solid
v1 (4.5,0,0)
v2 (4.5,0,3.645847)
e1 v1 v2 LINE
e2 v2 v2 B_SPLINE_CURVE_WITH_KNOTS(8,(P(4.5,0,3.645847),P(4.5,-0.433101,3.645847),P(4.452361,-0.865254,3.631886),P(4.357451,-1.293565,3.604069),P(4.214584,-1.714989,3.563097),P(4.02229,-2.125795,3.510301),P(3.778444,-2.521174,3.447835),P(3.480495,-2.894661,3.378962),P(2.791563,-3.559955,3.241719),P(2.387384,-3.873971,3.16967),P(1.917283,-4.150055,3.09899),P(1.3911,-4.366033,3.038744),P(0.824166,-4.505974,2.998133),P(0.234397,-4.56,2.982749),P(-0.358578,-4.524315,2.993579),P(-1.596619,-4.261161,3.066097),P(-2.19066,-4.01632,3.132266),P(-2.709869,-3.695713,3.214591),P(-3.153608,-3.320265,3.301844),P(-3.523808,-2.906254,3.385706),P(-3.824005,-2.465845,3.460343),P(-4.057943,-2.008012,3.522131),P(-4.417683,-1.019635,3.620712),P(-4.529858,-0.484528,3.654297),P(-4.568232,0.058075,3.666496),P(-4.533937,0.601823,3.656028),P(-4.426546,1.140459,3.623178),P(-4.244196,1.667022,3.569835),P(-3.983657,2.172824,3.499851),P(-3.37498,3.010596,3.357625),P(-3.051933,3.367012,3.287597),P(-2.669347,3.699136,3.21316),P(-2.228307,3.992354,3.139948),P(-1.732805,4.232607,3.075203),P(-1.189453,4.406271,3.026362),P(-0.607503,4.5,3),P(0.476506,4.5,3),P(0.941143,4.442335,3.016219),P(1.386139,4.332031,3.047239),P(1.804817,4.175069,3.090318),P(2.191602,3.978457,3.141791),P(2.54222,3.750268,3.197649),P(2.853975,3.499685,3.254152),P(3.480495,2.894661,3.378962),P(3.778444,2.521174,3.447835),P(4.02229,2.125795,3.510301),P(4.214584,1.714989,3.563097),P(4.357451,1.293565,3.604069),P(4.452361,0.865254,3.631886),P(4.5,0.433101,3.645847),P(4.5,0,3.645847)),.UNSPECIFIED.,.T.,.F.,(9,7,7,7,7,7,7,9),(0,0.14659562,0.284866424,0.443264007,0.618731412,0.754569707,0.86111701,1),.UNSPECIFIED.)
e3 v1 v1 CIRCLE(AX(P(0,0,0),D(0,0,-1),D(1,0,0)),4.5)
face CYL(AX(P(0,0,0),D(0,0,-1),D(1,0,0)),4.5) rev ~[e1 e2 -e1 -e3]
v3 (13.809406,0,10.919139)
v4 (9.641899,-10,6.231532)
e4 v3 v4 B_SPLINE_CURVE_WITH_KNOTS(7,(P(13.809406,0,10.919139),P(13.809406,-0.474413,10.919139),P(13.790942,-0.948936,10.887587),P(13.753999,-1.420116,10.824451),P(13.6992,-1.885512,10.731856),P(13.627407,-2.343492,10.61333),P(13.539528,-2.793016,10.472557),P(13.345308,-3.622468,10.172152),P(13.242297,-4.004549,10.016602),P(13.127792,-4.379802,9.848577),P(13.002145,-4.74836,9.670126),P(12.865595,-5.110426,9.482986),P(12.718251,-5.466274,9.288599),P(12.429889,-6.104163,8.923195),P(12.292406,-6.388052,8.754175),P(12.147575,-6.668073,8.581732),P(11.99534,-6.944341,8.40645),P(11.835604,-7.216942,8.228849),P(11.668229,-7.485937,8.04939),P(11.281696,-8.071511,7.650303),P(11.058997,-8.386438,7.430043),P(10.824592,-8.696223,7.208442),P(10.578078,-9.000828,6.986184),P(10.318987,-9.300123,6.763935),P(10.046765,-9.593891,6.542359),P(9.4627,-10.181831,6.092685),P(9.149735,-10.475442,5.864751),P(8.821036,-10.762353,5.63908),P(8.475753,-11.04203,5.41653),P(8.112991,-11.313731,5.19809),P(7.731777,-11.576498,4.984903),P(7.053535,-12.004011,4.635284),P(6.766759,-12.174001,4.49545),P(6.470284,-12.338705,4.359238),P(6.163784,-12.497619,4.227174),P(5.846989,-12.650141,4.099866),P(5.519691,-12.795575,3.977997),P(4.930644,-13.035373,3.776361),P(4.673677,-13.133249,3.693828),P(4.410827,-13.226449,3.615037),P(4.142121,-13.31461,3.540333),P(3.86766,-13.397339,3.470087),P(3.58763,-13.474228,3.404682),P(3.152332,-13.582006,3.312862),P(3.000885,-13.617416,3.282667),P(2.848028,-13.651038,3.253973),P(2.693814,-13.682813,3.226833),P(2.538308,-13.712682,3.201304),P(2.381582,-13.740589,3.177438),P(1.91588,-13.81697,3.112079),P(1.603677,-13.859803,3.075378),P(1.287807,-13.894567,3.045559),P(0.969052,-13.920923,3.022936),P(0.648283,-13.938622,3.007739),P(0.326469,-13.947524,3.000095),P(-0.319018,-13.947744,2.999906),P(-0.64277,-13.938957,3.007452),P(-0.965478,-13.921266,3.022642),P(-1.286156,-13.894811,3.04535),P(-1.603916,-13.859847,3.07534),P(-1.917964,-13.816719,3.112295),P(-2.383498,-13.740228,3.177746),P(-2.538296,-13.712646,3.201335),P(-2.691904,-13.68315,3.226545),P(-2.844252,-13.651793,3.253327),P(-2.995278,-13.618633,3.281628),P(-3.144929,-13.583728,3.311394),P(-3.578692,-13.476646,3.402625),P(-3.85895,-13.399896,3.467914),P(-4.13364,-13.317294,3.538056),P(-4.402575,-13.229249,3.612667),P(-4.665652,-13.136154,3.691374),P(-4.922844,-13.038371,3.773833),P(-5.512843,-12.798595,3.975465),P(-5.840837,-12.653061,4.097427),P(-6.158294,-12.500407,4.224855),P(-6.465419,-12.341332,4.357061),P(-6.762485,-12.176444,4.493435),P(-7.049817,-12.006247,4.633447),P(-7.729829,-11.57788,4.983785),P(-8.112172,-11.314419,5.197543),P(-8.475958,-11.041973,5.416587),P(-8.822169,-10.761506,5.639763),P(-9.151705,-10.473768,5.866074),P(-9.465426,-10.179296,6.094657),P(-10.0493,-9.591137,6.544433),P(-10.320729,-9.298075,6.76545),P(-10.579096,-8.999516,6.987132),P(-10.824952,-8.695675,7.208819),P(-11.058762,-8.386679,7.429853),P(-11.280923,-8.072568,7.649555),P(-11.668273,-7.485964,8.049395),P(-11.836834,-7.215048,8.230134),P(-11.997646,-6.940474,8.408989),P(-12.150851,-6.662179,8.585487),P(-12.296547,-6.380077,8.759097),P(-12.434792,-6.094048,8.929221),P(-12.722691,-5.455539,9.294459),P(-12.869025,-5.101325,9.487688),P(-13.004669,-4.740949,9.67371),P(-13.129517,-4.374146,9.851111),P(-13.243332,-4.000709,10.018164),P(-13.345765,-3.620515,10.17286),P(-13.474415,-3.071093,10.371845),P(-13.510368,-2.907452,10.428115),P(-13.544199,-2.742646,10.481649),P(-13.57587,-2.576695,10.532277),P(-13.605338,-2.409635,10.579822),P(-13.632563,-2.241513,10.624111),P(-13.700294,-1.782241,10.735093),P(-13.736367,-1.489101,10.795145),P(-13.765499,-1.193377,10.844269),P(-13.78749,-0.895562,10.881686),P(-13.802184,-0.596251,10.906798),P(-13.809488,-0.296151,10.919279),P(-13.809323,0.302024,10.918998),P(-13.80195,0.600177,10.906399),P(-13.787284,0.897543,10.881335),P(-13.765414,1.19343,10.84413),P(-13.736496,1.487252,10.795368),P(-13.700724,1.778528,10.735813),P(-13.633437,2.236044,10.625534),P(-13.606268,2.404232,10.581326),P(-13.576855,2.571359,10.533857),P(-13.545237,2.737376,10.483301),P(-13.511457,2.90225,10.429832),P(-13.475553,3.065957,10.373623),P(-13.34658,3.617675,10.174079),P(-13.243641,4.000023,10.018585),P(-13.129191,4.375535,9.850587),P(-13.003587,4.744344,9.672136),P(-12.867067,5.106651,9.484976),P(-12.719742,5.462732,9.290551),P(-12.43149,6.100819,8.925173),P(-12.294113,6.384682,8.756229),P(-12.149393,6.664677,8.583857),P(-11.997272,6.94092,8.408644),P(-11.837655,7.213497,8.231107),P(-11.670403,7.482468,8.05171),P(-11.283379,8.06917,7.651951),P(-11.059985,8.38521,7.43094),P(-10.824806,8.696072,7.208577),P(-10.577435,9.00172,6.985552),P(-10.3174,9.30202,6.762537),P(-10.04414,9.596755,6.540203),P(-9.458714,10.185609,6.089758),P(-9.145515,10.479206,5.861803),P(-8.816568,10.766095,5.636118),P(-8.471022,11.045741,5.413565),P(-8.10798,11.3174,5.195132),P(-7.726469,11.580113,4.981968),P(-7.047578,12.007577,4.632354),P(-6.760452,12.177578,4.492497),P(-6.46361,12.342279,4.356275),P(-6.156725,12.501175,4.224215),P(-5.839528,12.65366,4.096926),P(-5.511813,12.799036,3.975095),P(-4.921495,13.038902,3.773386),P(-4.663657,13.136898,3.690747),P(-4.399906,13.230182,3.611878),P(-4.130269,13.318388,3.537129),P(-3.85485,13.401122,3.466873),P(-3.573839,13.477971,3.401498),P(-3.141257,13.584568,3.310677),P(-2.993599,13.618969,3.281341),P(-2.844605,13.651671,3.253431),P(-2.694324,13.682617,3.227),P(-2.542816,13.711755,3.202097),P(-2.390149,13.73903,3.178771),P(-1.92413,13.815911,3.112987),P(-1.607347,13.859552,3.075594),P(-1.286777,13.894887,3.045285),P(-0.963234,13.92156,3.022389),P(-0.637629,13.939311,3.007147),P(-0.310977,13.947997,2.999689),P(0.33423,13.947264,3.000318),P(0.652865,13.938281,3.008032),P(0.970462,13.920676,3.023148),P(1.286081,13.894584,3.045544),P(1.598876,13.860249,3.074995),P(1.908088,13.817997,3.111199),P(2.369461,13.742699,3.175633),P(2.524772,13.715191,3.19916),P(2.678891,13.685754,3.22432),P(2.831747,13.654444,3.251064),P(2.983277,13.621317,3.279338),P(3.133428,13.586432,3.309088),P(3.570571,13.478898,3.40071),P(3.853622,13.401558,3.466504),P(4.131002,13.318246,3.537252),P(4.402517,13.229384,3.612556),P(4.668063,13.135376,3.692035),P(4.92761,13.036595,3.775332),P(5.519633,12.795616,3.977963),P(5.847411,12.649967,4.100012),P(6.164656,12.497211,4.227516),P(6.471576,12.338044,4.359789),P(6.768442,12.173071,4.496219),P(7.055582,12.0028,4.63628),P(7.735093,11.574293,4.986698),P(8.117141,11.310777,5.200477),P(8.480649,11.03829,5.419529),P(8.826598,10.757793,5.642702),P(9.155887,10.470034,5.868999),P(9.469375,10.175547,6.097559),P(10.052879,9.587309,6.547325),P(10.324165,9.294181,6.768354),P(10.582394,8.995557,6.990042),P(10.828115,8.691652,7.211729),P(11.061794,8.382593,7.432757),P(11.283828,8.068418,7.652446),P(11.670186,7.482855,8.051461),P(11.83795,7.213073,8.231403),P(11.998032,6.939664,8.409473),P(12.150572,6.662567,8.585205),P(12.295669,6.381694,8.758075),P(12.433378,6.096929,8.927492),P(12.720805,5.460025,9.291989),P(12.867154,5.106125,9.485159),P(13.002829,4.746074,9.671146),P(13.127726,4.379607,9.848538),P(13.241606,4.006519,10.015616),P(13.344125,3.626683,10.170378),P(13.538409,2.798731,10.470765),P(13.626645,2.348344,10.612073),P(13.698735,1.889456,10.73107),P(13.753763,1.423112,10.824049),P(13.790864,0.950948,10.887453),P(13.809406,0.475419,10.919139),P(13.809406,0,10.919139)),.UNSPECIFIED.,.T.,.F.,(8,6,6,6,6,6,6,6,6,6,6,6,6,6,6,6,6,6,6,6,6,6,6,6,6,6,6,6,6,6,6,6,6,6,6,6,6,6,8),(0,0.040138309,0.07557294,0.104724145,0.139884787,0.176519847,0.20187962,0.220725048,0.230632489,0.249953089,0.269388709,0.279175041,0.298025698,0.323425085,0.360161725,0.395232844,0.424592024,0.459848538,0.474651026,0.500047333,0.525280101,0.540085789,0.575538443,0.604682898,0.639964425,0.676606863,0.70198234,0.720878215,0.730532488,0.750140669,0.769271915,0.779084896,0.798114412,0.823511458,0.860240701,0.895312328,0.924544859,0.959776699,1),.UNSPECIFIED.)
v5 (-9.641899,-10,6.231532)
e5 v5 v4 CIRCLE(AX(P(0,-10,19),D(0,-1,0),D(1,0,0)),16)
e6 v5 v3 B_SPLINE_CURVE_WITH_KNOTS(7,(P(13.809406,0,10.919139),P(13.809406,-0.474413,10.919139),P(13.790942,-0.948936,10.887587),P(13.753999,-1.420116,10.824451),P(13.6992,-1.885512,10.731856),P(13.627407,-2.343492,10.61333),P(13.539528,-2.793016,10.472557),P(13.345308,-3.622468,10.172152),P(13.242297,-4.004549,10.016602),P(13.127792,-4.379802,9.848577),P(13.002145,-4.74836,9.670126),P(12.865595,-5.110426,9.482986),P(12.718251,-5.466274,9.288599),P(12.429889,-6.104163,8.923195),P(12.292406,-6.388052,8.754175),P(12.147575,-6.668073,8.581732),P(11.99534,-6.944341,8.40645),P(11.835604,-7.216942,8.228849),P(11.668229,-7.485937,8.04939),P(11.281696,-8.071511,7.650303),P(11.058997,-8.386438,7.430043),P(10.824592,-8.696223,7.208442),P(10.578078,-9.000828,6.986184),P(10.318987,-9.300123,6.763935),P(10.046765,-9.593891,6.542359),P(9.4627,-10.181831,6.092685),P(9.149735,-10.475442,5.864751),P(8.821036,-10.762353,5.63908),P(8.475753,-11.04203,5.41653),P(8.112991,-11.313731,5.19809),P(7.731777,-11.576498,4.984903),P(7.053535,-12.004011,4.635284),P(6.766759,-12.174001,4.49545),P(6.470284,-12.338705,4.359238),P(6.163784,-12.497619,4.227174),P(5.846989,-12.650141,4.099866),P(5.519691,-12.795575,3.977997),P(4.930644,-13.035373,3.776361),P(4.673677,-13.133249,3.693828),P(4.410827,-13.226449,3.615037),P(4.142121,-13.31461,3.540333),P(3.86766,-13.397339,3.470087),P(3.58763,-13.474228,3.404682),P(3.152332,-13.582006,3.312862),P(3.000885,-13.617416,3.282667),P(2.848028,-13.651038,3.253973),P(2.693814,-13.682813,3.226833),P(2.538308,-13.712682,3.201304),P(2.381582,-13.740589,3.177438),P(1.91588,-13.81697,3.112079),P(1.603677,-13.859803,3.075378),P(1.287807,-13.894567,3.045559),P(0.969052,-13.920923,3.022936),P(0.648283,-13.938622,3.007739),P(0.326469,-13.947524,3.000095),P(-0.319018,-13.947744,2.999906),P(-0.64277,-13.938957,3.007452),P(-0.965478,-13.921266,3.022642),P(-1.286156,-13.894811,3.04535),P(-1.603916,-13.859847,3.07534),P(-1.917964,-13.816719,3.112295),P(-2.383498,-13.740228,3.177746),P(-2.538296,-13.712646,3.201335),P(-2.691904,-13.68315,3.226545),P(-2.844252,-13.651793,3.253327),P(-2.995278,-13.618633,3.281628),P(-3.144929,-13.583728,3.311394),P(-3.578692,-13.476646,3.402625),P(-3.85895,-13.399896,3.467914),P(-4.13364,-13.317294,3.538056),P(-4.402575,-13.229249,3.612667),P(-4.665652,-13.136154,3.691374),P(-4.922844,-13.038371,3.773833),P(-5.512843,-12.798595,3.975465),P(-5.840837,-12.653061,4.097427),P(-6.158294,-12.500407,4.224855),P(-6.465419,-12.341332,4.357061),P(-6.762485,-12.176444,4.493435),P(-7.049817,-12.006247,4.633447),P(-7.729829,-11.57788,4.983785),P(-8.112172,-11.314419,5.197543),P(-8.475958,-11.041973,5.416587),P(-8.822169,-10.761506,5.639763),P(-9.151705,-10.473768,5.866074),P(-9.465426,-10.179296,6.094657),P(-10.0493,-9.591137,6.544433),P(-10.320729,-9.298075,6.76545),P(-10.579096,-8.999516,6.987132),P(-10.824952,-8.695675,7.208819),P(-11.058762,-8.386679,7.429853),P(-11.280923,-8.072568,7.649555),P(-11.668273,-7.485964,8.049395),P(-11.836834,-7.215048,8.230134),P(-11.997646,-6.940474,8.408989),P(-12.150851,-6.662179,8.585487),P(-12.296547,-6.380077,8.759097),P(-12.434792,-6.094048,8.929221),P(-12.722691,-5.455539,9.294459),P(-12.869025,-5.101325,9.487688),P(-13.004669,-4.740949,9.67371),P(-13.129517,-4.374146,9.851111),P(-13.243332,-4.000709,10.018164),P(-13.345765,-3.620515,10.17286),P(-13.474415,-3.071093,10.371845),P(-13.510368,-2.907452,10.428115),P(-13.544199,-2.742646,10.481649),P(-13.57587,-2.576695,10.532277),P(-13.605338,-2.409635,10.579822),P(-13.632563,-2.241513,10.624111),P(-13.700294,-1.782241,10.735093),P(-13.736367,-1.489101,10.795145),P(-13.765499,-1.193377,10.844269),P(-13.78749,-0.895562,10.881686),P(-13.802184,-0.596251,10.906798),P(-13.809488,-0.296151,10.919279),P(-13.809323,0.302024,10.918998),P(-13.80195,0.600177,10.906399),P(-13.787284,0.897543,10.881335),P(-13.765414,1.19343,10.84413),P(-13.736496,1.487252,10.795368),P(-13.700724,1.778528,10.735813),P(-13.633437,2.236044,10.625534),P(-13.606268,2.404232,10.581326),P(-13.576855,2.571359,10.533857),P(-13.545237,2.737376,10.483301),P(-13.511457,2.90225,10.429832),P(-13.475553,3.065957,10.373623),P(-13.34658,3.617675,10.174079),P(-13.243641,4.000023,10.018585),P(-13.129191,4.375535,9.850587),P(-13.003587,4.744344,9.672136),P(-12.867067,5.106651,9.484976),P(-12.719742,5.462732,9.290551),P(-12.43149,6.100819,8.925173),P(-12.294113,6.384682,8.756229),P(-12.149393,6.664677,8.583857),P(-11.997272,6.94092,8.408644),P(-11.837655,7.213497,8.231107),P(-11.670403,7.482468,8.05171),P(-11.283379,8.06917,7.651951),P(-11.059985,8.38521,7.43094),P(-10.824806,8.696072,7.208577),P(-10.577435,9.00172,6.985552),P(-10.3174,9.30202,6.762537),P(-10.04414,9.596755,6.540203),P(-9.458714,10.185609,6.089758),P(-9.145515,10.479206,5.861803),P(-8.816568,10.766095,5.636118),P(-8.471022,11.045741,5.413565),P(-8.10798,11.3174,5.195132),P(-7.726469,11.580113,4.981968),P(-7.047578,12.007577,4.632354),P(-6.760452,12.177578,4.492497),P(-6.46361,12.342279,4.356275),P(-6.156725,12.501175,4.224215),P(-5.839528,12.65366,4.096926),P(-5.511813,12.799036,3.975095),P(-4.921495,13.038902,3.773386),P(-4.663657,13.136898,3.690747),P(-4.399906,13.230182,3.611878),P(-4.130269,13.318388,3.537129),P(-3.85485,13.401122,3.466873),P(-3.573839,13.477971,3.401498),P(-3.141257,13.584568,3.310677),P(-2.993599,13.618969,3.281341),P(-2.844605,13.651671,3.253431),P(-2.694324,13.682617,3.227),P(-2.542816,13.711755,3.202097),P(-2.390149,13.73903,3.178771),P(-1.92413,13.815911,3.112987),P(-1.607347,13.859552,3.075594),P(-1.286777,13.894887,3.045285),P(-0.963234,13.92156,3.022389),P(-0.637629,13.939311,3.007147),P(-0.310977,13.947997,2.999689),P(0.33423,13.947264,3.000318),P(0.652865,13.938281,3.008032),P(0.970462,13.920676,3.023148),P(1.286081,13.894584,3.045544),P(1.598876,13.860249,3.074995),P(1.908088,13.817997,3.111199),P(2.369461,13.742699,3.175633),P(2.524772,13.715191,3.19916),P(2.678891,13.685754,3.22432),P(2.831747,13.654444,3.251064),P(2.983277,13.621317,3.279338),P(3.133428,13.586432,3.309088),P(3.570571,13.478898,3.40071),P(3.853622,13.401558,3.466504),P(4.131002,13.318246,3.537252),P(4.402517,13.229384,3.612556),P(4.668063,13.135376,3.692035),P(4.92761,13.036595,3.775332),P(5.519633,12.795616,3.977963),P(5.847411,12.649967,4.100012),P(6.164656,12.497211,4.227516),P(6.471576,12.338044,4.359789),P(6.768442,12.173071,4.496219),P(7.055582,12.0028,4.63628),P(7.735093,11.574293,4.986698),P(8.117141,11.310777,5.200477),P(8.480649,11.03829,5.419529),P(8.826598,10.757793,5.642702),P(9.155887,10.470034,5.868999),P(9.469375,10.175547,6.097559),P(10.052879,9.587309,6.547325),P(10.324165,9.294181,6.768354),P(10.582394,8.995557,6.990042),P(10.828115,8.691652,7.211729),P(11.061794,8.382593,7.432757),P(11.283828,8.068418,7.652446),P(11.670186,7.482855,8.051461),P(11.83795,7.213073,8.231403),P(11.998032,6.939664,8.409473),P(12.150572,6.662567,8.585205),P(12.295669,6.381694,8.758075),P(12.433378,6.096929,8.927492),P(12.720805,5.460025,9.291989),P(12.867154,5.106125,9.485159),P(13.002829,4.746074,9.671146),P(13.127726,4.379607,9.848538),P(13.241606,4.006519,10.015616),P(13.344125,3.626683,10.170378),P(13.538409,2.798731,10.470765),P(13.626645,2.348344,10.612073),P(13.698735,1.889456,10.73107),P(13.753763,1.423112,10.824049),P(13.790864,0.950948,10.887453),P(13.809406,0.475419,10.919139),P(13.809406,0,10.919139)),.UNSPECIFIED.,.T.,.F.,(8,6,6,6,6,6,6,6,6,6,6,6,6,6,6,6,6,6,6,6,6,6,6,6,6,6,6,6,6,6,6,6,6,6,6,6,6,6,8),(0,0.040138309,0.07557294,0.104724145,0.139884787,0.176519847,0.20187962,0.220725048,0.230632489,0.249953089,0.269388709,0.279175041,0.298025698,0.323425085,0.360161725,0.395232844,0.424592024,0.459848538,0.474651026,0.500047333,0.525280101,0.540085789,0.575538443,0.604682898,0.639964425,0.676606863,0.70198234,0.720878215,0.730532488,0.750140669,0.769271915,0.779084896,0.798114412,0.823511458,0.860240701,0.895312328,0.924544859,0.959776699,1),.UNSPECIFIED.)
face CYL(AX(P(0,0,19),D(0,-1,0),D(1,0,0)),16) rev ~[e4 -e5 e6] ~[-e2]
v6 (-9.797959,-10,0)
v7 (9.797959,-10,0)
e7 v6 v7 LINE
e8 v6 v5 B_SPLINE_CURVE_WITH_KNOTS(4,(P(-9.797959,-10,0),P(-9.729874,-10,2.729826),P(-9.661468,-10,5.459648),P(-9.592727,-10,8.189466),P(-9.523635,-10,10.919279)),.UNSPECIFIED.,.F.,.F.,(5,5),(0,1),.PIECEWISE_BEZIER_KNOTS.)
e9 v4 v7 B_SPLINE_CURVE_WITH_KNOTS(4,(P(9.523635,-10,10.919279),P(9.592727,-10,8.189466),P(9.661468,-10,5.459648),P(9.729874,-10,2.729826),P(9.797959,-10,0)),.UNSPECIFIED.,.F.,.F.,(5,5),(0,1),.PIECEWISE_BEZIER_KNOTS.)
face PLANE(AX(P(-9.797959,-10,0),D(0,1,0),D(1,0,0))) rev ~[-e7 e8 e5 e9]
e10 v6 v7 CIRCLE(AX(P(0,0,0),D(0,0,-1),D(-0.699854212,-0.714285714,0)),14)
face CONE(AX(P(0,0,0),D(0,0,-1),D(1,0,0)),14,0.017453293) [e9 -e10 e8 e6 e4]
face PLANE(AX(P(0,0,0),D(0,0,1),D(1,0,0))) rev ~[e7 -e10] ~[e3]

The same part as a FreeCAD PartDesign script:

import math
import FreeCAD as App
import Part
import Sketcher

doc = App.newDocument("Part")
body = doc.addObject("PartDesign::Body", "Body")

# Sketch on XY plane
sketch1 = body.newObject("Sketcher::SketchObject", "Sketch")
sketch1.AttachmentSupport = (doc.getObject("XY_Plane"), [""])
sketch1.MapMode = "FlatFace"
sketch1.addGeometry(Part.Circle(App.Vector(0, 0, 0), App.Vector(0, 0, 1), 14), False)
sketch1.addConstraint([
    Sketcher.Constraint("Coincident", 0, 3, -1, 1),
    Sketcher.Constraint("Diameter", 0, 28.0),
])
pad1 = body.newObject("PartDesign::Pad", "Pad")
pad1.Profile = sketch1
pad1.Length = 12
pad1.TaperAngle = -1

# Sketch on XZ plane
sketch2 = body.newObject("Sketcher::SketchObject", "Sketch001")
sketch2.AttachmentSupport = (doc.getObject("XZ_Plane"), [""])
sketch2.MapMode = "FlatFace"
sketch2.addGeometry(Part.Circle(App.Vector(0, 19, 0), App.Vector(0, 0, 1), 16), False)
sketch2.addConstraint([
    Sketcher.Constraint("PointOnObject", 0, 3, -2),
    Sketcher.Constraint("Diameter", 0, 32.0),
    Sketcher.Constraint("DistanceY", -1, 1, 0, 3, 19.0),
])
pocket1 = body.newObject("PartDesign::Pocket", "Pocket")
pocket1.Profile = sketch2
pocket1.Length = 32
pocket1.Midplane = True

# Sketch on XY plane
sketch3 = body.newObject("Sketcher::SketchObject", "Sketch002")
sketch3.AttachmentSupport = (doc.getObject("XY_Plane"), [""])
sketch3.MapMode = "FlatFace"
sketch3.addGeometry(Part.Circle(App.Vector(0, 0, 0), App.Vector(0, 0, 1), 4.5), False)
sketch3.addConstraint([
    Sketcher.Constraint("Coincident", 0, 3, -1, 1),
    Sketcher.Constraint("Diameter", 0, 9.0),
])
pocket2 = body.newObject("PartDesign::Pocket", "Pocket001")
pocket2.Profile = sketch3
pocket2.Length = 5
pocket2.Reversed = True

# Sketch on XY plane
sketch4 = body.newObject("Sketcher::SketchObject", "Sketch003")
sketch4.AttachmentSupport = (doc.getObject("XY_Plane"), [""])
sketch4.MapMode = "FlatFace"
sketch4.addGeometry([
    Part.ArcOfCircle(Part.Circle(App.Vector(0, 0, 0), App.Vector(0, 0, 1), 14), math.radians(-134), math.radians(-46)),
    Part.LineSegment(App.Vector(-10, -10, 0), App.Vector(10, -10, 0)),
], False)
sketch4.addConstraint([
    Sketcher.Constraint("Coincident", 0, 1, 1, 1),
    Sketcher.Constraint("Coincident", 1, 2, 0, 2),
    Sketcher.Constraint("Horizontal", 1),
    Sketcher.Constraint("Coincident", 0, 3, -1, 1),
    Sketcher.Constraint("Radius", 0, 14.0),
    Sketcher.Constraint("DistanceY", 0, 1, -1, 1, 10.0),
])
pocket3 = body.newObject("PartDesign::Pocket", "Pocket002")
pocket3.Profile = sketch4
pocket3.Type = "ThroughAll"
pocket3.Reversed = True

doc.recompute()
